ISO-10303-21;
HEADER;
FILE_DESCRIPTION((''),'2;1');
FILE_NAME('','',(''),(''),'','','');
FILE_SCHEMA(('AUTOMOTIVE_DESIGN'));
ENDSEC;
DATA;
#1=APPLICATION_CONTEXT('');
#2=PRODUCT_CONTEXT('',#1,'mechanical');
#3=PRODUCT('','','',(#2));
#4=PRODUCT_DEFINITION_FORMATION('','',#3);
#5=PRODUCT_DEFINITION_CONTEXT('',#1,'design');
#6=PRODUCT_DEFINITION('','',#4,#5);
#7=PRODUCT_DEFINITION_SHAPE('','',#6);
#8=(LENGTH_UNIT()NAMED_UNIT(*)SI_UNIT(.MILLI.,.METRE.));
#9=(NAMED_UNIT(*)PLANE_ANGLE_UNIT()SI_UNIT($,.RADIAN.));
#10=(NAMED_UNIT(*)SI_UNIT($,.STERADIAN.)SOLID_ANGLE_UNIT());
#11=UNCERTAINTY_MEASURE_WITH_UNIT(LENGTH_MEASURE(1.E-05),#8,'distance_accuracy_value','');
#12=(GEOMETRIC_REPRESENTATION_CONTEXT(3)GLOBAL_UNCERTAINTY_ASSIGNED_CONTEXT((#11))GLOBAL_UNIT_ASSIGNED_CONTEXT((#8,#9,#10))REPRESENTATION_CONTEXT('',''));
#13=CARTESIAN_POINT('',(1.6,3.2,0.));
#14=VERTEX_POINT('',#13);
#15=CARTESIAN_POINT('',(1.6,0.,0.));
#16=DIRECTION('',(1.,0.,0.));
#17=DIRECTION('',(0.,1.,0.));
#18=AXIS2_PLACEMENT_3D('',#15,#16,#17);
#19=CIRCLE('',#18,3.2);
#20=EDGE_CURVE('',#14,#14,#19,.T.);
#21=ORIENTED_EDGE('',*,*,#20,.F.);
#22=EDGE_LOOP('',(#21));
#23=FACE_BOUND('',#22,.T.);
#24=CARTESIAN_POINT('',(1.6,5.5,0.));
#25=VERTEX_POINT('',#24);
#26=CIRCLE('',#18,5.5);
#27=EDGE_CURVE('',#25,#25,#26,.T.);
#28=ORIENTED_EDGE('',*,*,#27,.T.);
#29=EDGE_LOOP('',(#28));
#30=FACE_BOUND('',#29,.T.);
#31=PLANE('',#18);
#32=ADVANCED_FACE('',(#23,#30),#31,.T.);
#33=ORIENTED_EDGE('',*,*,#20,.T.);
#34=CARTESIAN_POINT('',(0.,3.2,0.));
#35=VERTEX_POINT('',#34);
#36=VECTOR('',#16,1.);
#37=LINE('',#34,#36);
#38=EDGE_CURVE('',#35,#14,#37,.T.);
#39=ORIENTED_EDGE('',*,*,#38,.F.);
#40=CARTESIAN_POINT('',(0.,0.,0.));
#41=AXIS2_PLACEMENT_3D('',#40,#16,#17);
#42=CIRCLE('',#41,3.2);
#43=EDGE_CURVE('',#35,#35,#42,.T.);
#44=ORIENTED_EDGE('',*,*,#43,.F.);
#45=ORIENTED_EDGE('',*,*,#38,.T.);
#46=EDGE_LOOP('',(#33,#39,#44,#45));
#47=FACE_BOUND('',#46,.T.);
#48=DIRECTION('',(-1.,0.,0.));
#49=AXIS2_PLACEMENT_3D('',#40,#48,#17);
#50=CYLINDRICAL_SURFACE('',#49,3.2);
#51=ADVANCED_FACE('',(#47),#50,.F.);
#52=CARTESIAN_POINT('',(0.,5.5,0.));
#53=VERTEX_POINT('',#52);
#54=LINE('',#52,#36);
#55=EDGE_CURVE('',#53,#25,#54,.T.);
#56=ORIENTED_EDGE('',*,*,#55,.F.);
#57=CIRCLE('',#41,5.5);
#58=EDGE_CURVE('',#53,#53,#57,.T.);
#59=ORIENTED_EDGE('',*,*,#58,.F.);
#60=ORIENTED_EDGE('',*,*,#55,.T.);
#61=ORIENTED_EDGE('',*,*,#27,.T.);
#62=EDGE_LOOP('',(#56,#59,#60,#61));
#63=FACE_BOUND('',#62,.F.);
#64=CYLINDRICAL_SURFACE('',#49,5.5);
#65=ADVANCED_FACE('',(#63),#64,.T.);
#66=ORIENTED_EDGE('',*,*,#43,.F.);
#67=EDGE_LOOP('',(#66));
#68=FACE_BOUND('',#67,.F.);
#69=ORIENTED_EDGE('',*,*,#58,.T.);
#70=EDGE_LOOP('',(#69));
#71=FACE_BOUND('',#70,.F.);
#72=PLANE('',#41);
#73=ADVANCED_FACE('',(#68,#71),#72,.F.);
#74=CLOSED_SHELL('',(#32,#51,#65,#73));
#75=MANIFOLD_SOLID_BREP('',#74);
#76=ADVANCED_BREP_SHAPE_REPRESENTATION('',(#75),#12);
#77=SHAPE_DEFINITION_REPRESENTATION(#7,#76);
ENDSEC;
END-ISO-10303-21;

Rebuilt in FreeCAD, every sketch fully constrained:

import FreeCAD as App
import Part
import Sketcher
Q = App.Units.Quantity

doc = App.newDocument("Part")
body = doc.addObject("PartDesign::Body", "Body")

sketch1 = doc.addObject("Sketcher::SketchObject", "Sketch")
body.addObject(sketch1)
sketch1.AttachmentSupport = (doc.YZ_Plane, [""])
sketch1.MapMode = "FlatFace"
sketch1.addGeometry([
    Part.Circle(App.Vector(0, 0, 0), App.Vector(0, 0, 1), 5.5),
    Part.Circle(App.Vector(0, 0, 0), App.Vector(0, 0, 1), 3.2),
], False)
sketch1.addConstraint([
    Sketcher.Constraint("Coincident", 0, 3, -1, 1),
    Sketcher.Constraint("Coincident", 1, 3, -1, 1),
    Sketcher.Constraint("Diameter", 0, Q("11 mm")),
    Sketcher.Constraint("Diameter", 1, Q("6.4 mm")),
])
pad1 = doc.addObject("PartDesign::Pad", "Pad")
body.addObject(pad1)
pad1.Profile = sketch1
pad1.Length = 1.6

doc.recompute()
